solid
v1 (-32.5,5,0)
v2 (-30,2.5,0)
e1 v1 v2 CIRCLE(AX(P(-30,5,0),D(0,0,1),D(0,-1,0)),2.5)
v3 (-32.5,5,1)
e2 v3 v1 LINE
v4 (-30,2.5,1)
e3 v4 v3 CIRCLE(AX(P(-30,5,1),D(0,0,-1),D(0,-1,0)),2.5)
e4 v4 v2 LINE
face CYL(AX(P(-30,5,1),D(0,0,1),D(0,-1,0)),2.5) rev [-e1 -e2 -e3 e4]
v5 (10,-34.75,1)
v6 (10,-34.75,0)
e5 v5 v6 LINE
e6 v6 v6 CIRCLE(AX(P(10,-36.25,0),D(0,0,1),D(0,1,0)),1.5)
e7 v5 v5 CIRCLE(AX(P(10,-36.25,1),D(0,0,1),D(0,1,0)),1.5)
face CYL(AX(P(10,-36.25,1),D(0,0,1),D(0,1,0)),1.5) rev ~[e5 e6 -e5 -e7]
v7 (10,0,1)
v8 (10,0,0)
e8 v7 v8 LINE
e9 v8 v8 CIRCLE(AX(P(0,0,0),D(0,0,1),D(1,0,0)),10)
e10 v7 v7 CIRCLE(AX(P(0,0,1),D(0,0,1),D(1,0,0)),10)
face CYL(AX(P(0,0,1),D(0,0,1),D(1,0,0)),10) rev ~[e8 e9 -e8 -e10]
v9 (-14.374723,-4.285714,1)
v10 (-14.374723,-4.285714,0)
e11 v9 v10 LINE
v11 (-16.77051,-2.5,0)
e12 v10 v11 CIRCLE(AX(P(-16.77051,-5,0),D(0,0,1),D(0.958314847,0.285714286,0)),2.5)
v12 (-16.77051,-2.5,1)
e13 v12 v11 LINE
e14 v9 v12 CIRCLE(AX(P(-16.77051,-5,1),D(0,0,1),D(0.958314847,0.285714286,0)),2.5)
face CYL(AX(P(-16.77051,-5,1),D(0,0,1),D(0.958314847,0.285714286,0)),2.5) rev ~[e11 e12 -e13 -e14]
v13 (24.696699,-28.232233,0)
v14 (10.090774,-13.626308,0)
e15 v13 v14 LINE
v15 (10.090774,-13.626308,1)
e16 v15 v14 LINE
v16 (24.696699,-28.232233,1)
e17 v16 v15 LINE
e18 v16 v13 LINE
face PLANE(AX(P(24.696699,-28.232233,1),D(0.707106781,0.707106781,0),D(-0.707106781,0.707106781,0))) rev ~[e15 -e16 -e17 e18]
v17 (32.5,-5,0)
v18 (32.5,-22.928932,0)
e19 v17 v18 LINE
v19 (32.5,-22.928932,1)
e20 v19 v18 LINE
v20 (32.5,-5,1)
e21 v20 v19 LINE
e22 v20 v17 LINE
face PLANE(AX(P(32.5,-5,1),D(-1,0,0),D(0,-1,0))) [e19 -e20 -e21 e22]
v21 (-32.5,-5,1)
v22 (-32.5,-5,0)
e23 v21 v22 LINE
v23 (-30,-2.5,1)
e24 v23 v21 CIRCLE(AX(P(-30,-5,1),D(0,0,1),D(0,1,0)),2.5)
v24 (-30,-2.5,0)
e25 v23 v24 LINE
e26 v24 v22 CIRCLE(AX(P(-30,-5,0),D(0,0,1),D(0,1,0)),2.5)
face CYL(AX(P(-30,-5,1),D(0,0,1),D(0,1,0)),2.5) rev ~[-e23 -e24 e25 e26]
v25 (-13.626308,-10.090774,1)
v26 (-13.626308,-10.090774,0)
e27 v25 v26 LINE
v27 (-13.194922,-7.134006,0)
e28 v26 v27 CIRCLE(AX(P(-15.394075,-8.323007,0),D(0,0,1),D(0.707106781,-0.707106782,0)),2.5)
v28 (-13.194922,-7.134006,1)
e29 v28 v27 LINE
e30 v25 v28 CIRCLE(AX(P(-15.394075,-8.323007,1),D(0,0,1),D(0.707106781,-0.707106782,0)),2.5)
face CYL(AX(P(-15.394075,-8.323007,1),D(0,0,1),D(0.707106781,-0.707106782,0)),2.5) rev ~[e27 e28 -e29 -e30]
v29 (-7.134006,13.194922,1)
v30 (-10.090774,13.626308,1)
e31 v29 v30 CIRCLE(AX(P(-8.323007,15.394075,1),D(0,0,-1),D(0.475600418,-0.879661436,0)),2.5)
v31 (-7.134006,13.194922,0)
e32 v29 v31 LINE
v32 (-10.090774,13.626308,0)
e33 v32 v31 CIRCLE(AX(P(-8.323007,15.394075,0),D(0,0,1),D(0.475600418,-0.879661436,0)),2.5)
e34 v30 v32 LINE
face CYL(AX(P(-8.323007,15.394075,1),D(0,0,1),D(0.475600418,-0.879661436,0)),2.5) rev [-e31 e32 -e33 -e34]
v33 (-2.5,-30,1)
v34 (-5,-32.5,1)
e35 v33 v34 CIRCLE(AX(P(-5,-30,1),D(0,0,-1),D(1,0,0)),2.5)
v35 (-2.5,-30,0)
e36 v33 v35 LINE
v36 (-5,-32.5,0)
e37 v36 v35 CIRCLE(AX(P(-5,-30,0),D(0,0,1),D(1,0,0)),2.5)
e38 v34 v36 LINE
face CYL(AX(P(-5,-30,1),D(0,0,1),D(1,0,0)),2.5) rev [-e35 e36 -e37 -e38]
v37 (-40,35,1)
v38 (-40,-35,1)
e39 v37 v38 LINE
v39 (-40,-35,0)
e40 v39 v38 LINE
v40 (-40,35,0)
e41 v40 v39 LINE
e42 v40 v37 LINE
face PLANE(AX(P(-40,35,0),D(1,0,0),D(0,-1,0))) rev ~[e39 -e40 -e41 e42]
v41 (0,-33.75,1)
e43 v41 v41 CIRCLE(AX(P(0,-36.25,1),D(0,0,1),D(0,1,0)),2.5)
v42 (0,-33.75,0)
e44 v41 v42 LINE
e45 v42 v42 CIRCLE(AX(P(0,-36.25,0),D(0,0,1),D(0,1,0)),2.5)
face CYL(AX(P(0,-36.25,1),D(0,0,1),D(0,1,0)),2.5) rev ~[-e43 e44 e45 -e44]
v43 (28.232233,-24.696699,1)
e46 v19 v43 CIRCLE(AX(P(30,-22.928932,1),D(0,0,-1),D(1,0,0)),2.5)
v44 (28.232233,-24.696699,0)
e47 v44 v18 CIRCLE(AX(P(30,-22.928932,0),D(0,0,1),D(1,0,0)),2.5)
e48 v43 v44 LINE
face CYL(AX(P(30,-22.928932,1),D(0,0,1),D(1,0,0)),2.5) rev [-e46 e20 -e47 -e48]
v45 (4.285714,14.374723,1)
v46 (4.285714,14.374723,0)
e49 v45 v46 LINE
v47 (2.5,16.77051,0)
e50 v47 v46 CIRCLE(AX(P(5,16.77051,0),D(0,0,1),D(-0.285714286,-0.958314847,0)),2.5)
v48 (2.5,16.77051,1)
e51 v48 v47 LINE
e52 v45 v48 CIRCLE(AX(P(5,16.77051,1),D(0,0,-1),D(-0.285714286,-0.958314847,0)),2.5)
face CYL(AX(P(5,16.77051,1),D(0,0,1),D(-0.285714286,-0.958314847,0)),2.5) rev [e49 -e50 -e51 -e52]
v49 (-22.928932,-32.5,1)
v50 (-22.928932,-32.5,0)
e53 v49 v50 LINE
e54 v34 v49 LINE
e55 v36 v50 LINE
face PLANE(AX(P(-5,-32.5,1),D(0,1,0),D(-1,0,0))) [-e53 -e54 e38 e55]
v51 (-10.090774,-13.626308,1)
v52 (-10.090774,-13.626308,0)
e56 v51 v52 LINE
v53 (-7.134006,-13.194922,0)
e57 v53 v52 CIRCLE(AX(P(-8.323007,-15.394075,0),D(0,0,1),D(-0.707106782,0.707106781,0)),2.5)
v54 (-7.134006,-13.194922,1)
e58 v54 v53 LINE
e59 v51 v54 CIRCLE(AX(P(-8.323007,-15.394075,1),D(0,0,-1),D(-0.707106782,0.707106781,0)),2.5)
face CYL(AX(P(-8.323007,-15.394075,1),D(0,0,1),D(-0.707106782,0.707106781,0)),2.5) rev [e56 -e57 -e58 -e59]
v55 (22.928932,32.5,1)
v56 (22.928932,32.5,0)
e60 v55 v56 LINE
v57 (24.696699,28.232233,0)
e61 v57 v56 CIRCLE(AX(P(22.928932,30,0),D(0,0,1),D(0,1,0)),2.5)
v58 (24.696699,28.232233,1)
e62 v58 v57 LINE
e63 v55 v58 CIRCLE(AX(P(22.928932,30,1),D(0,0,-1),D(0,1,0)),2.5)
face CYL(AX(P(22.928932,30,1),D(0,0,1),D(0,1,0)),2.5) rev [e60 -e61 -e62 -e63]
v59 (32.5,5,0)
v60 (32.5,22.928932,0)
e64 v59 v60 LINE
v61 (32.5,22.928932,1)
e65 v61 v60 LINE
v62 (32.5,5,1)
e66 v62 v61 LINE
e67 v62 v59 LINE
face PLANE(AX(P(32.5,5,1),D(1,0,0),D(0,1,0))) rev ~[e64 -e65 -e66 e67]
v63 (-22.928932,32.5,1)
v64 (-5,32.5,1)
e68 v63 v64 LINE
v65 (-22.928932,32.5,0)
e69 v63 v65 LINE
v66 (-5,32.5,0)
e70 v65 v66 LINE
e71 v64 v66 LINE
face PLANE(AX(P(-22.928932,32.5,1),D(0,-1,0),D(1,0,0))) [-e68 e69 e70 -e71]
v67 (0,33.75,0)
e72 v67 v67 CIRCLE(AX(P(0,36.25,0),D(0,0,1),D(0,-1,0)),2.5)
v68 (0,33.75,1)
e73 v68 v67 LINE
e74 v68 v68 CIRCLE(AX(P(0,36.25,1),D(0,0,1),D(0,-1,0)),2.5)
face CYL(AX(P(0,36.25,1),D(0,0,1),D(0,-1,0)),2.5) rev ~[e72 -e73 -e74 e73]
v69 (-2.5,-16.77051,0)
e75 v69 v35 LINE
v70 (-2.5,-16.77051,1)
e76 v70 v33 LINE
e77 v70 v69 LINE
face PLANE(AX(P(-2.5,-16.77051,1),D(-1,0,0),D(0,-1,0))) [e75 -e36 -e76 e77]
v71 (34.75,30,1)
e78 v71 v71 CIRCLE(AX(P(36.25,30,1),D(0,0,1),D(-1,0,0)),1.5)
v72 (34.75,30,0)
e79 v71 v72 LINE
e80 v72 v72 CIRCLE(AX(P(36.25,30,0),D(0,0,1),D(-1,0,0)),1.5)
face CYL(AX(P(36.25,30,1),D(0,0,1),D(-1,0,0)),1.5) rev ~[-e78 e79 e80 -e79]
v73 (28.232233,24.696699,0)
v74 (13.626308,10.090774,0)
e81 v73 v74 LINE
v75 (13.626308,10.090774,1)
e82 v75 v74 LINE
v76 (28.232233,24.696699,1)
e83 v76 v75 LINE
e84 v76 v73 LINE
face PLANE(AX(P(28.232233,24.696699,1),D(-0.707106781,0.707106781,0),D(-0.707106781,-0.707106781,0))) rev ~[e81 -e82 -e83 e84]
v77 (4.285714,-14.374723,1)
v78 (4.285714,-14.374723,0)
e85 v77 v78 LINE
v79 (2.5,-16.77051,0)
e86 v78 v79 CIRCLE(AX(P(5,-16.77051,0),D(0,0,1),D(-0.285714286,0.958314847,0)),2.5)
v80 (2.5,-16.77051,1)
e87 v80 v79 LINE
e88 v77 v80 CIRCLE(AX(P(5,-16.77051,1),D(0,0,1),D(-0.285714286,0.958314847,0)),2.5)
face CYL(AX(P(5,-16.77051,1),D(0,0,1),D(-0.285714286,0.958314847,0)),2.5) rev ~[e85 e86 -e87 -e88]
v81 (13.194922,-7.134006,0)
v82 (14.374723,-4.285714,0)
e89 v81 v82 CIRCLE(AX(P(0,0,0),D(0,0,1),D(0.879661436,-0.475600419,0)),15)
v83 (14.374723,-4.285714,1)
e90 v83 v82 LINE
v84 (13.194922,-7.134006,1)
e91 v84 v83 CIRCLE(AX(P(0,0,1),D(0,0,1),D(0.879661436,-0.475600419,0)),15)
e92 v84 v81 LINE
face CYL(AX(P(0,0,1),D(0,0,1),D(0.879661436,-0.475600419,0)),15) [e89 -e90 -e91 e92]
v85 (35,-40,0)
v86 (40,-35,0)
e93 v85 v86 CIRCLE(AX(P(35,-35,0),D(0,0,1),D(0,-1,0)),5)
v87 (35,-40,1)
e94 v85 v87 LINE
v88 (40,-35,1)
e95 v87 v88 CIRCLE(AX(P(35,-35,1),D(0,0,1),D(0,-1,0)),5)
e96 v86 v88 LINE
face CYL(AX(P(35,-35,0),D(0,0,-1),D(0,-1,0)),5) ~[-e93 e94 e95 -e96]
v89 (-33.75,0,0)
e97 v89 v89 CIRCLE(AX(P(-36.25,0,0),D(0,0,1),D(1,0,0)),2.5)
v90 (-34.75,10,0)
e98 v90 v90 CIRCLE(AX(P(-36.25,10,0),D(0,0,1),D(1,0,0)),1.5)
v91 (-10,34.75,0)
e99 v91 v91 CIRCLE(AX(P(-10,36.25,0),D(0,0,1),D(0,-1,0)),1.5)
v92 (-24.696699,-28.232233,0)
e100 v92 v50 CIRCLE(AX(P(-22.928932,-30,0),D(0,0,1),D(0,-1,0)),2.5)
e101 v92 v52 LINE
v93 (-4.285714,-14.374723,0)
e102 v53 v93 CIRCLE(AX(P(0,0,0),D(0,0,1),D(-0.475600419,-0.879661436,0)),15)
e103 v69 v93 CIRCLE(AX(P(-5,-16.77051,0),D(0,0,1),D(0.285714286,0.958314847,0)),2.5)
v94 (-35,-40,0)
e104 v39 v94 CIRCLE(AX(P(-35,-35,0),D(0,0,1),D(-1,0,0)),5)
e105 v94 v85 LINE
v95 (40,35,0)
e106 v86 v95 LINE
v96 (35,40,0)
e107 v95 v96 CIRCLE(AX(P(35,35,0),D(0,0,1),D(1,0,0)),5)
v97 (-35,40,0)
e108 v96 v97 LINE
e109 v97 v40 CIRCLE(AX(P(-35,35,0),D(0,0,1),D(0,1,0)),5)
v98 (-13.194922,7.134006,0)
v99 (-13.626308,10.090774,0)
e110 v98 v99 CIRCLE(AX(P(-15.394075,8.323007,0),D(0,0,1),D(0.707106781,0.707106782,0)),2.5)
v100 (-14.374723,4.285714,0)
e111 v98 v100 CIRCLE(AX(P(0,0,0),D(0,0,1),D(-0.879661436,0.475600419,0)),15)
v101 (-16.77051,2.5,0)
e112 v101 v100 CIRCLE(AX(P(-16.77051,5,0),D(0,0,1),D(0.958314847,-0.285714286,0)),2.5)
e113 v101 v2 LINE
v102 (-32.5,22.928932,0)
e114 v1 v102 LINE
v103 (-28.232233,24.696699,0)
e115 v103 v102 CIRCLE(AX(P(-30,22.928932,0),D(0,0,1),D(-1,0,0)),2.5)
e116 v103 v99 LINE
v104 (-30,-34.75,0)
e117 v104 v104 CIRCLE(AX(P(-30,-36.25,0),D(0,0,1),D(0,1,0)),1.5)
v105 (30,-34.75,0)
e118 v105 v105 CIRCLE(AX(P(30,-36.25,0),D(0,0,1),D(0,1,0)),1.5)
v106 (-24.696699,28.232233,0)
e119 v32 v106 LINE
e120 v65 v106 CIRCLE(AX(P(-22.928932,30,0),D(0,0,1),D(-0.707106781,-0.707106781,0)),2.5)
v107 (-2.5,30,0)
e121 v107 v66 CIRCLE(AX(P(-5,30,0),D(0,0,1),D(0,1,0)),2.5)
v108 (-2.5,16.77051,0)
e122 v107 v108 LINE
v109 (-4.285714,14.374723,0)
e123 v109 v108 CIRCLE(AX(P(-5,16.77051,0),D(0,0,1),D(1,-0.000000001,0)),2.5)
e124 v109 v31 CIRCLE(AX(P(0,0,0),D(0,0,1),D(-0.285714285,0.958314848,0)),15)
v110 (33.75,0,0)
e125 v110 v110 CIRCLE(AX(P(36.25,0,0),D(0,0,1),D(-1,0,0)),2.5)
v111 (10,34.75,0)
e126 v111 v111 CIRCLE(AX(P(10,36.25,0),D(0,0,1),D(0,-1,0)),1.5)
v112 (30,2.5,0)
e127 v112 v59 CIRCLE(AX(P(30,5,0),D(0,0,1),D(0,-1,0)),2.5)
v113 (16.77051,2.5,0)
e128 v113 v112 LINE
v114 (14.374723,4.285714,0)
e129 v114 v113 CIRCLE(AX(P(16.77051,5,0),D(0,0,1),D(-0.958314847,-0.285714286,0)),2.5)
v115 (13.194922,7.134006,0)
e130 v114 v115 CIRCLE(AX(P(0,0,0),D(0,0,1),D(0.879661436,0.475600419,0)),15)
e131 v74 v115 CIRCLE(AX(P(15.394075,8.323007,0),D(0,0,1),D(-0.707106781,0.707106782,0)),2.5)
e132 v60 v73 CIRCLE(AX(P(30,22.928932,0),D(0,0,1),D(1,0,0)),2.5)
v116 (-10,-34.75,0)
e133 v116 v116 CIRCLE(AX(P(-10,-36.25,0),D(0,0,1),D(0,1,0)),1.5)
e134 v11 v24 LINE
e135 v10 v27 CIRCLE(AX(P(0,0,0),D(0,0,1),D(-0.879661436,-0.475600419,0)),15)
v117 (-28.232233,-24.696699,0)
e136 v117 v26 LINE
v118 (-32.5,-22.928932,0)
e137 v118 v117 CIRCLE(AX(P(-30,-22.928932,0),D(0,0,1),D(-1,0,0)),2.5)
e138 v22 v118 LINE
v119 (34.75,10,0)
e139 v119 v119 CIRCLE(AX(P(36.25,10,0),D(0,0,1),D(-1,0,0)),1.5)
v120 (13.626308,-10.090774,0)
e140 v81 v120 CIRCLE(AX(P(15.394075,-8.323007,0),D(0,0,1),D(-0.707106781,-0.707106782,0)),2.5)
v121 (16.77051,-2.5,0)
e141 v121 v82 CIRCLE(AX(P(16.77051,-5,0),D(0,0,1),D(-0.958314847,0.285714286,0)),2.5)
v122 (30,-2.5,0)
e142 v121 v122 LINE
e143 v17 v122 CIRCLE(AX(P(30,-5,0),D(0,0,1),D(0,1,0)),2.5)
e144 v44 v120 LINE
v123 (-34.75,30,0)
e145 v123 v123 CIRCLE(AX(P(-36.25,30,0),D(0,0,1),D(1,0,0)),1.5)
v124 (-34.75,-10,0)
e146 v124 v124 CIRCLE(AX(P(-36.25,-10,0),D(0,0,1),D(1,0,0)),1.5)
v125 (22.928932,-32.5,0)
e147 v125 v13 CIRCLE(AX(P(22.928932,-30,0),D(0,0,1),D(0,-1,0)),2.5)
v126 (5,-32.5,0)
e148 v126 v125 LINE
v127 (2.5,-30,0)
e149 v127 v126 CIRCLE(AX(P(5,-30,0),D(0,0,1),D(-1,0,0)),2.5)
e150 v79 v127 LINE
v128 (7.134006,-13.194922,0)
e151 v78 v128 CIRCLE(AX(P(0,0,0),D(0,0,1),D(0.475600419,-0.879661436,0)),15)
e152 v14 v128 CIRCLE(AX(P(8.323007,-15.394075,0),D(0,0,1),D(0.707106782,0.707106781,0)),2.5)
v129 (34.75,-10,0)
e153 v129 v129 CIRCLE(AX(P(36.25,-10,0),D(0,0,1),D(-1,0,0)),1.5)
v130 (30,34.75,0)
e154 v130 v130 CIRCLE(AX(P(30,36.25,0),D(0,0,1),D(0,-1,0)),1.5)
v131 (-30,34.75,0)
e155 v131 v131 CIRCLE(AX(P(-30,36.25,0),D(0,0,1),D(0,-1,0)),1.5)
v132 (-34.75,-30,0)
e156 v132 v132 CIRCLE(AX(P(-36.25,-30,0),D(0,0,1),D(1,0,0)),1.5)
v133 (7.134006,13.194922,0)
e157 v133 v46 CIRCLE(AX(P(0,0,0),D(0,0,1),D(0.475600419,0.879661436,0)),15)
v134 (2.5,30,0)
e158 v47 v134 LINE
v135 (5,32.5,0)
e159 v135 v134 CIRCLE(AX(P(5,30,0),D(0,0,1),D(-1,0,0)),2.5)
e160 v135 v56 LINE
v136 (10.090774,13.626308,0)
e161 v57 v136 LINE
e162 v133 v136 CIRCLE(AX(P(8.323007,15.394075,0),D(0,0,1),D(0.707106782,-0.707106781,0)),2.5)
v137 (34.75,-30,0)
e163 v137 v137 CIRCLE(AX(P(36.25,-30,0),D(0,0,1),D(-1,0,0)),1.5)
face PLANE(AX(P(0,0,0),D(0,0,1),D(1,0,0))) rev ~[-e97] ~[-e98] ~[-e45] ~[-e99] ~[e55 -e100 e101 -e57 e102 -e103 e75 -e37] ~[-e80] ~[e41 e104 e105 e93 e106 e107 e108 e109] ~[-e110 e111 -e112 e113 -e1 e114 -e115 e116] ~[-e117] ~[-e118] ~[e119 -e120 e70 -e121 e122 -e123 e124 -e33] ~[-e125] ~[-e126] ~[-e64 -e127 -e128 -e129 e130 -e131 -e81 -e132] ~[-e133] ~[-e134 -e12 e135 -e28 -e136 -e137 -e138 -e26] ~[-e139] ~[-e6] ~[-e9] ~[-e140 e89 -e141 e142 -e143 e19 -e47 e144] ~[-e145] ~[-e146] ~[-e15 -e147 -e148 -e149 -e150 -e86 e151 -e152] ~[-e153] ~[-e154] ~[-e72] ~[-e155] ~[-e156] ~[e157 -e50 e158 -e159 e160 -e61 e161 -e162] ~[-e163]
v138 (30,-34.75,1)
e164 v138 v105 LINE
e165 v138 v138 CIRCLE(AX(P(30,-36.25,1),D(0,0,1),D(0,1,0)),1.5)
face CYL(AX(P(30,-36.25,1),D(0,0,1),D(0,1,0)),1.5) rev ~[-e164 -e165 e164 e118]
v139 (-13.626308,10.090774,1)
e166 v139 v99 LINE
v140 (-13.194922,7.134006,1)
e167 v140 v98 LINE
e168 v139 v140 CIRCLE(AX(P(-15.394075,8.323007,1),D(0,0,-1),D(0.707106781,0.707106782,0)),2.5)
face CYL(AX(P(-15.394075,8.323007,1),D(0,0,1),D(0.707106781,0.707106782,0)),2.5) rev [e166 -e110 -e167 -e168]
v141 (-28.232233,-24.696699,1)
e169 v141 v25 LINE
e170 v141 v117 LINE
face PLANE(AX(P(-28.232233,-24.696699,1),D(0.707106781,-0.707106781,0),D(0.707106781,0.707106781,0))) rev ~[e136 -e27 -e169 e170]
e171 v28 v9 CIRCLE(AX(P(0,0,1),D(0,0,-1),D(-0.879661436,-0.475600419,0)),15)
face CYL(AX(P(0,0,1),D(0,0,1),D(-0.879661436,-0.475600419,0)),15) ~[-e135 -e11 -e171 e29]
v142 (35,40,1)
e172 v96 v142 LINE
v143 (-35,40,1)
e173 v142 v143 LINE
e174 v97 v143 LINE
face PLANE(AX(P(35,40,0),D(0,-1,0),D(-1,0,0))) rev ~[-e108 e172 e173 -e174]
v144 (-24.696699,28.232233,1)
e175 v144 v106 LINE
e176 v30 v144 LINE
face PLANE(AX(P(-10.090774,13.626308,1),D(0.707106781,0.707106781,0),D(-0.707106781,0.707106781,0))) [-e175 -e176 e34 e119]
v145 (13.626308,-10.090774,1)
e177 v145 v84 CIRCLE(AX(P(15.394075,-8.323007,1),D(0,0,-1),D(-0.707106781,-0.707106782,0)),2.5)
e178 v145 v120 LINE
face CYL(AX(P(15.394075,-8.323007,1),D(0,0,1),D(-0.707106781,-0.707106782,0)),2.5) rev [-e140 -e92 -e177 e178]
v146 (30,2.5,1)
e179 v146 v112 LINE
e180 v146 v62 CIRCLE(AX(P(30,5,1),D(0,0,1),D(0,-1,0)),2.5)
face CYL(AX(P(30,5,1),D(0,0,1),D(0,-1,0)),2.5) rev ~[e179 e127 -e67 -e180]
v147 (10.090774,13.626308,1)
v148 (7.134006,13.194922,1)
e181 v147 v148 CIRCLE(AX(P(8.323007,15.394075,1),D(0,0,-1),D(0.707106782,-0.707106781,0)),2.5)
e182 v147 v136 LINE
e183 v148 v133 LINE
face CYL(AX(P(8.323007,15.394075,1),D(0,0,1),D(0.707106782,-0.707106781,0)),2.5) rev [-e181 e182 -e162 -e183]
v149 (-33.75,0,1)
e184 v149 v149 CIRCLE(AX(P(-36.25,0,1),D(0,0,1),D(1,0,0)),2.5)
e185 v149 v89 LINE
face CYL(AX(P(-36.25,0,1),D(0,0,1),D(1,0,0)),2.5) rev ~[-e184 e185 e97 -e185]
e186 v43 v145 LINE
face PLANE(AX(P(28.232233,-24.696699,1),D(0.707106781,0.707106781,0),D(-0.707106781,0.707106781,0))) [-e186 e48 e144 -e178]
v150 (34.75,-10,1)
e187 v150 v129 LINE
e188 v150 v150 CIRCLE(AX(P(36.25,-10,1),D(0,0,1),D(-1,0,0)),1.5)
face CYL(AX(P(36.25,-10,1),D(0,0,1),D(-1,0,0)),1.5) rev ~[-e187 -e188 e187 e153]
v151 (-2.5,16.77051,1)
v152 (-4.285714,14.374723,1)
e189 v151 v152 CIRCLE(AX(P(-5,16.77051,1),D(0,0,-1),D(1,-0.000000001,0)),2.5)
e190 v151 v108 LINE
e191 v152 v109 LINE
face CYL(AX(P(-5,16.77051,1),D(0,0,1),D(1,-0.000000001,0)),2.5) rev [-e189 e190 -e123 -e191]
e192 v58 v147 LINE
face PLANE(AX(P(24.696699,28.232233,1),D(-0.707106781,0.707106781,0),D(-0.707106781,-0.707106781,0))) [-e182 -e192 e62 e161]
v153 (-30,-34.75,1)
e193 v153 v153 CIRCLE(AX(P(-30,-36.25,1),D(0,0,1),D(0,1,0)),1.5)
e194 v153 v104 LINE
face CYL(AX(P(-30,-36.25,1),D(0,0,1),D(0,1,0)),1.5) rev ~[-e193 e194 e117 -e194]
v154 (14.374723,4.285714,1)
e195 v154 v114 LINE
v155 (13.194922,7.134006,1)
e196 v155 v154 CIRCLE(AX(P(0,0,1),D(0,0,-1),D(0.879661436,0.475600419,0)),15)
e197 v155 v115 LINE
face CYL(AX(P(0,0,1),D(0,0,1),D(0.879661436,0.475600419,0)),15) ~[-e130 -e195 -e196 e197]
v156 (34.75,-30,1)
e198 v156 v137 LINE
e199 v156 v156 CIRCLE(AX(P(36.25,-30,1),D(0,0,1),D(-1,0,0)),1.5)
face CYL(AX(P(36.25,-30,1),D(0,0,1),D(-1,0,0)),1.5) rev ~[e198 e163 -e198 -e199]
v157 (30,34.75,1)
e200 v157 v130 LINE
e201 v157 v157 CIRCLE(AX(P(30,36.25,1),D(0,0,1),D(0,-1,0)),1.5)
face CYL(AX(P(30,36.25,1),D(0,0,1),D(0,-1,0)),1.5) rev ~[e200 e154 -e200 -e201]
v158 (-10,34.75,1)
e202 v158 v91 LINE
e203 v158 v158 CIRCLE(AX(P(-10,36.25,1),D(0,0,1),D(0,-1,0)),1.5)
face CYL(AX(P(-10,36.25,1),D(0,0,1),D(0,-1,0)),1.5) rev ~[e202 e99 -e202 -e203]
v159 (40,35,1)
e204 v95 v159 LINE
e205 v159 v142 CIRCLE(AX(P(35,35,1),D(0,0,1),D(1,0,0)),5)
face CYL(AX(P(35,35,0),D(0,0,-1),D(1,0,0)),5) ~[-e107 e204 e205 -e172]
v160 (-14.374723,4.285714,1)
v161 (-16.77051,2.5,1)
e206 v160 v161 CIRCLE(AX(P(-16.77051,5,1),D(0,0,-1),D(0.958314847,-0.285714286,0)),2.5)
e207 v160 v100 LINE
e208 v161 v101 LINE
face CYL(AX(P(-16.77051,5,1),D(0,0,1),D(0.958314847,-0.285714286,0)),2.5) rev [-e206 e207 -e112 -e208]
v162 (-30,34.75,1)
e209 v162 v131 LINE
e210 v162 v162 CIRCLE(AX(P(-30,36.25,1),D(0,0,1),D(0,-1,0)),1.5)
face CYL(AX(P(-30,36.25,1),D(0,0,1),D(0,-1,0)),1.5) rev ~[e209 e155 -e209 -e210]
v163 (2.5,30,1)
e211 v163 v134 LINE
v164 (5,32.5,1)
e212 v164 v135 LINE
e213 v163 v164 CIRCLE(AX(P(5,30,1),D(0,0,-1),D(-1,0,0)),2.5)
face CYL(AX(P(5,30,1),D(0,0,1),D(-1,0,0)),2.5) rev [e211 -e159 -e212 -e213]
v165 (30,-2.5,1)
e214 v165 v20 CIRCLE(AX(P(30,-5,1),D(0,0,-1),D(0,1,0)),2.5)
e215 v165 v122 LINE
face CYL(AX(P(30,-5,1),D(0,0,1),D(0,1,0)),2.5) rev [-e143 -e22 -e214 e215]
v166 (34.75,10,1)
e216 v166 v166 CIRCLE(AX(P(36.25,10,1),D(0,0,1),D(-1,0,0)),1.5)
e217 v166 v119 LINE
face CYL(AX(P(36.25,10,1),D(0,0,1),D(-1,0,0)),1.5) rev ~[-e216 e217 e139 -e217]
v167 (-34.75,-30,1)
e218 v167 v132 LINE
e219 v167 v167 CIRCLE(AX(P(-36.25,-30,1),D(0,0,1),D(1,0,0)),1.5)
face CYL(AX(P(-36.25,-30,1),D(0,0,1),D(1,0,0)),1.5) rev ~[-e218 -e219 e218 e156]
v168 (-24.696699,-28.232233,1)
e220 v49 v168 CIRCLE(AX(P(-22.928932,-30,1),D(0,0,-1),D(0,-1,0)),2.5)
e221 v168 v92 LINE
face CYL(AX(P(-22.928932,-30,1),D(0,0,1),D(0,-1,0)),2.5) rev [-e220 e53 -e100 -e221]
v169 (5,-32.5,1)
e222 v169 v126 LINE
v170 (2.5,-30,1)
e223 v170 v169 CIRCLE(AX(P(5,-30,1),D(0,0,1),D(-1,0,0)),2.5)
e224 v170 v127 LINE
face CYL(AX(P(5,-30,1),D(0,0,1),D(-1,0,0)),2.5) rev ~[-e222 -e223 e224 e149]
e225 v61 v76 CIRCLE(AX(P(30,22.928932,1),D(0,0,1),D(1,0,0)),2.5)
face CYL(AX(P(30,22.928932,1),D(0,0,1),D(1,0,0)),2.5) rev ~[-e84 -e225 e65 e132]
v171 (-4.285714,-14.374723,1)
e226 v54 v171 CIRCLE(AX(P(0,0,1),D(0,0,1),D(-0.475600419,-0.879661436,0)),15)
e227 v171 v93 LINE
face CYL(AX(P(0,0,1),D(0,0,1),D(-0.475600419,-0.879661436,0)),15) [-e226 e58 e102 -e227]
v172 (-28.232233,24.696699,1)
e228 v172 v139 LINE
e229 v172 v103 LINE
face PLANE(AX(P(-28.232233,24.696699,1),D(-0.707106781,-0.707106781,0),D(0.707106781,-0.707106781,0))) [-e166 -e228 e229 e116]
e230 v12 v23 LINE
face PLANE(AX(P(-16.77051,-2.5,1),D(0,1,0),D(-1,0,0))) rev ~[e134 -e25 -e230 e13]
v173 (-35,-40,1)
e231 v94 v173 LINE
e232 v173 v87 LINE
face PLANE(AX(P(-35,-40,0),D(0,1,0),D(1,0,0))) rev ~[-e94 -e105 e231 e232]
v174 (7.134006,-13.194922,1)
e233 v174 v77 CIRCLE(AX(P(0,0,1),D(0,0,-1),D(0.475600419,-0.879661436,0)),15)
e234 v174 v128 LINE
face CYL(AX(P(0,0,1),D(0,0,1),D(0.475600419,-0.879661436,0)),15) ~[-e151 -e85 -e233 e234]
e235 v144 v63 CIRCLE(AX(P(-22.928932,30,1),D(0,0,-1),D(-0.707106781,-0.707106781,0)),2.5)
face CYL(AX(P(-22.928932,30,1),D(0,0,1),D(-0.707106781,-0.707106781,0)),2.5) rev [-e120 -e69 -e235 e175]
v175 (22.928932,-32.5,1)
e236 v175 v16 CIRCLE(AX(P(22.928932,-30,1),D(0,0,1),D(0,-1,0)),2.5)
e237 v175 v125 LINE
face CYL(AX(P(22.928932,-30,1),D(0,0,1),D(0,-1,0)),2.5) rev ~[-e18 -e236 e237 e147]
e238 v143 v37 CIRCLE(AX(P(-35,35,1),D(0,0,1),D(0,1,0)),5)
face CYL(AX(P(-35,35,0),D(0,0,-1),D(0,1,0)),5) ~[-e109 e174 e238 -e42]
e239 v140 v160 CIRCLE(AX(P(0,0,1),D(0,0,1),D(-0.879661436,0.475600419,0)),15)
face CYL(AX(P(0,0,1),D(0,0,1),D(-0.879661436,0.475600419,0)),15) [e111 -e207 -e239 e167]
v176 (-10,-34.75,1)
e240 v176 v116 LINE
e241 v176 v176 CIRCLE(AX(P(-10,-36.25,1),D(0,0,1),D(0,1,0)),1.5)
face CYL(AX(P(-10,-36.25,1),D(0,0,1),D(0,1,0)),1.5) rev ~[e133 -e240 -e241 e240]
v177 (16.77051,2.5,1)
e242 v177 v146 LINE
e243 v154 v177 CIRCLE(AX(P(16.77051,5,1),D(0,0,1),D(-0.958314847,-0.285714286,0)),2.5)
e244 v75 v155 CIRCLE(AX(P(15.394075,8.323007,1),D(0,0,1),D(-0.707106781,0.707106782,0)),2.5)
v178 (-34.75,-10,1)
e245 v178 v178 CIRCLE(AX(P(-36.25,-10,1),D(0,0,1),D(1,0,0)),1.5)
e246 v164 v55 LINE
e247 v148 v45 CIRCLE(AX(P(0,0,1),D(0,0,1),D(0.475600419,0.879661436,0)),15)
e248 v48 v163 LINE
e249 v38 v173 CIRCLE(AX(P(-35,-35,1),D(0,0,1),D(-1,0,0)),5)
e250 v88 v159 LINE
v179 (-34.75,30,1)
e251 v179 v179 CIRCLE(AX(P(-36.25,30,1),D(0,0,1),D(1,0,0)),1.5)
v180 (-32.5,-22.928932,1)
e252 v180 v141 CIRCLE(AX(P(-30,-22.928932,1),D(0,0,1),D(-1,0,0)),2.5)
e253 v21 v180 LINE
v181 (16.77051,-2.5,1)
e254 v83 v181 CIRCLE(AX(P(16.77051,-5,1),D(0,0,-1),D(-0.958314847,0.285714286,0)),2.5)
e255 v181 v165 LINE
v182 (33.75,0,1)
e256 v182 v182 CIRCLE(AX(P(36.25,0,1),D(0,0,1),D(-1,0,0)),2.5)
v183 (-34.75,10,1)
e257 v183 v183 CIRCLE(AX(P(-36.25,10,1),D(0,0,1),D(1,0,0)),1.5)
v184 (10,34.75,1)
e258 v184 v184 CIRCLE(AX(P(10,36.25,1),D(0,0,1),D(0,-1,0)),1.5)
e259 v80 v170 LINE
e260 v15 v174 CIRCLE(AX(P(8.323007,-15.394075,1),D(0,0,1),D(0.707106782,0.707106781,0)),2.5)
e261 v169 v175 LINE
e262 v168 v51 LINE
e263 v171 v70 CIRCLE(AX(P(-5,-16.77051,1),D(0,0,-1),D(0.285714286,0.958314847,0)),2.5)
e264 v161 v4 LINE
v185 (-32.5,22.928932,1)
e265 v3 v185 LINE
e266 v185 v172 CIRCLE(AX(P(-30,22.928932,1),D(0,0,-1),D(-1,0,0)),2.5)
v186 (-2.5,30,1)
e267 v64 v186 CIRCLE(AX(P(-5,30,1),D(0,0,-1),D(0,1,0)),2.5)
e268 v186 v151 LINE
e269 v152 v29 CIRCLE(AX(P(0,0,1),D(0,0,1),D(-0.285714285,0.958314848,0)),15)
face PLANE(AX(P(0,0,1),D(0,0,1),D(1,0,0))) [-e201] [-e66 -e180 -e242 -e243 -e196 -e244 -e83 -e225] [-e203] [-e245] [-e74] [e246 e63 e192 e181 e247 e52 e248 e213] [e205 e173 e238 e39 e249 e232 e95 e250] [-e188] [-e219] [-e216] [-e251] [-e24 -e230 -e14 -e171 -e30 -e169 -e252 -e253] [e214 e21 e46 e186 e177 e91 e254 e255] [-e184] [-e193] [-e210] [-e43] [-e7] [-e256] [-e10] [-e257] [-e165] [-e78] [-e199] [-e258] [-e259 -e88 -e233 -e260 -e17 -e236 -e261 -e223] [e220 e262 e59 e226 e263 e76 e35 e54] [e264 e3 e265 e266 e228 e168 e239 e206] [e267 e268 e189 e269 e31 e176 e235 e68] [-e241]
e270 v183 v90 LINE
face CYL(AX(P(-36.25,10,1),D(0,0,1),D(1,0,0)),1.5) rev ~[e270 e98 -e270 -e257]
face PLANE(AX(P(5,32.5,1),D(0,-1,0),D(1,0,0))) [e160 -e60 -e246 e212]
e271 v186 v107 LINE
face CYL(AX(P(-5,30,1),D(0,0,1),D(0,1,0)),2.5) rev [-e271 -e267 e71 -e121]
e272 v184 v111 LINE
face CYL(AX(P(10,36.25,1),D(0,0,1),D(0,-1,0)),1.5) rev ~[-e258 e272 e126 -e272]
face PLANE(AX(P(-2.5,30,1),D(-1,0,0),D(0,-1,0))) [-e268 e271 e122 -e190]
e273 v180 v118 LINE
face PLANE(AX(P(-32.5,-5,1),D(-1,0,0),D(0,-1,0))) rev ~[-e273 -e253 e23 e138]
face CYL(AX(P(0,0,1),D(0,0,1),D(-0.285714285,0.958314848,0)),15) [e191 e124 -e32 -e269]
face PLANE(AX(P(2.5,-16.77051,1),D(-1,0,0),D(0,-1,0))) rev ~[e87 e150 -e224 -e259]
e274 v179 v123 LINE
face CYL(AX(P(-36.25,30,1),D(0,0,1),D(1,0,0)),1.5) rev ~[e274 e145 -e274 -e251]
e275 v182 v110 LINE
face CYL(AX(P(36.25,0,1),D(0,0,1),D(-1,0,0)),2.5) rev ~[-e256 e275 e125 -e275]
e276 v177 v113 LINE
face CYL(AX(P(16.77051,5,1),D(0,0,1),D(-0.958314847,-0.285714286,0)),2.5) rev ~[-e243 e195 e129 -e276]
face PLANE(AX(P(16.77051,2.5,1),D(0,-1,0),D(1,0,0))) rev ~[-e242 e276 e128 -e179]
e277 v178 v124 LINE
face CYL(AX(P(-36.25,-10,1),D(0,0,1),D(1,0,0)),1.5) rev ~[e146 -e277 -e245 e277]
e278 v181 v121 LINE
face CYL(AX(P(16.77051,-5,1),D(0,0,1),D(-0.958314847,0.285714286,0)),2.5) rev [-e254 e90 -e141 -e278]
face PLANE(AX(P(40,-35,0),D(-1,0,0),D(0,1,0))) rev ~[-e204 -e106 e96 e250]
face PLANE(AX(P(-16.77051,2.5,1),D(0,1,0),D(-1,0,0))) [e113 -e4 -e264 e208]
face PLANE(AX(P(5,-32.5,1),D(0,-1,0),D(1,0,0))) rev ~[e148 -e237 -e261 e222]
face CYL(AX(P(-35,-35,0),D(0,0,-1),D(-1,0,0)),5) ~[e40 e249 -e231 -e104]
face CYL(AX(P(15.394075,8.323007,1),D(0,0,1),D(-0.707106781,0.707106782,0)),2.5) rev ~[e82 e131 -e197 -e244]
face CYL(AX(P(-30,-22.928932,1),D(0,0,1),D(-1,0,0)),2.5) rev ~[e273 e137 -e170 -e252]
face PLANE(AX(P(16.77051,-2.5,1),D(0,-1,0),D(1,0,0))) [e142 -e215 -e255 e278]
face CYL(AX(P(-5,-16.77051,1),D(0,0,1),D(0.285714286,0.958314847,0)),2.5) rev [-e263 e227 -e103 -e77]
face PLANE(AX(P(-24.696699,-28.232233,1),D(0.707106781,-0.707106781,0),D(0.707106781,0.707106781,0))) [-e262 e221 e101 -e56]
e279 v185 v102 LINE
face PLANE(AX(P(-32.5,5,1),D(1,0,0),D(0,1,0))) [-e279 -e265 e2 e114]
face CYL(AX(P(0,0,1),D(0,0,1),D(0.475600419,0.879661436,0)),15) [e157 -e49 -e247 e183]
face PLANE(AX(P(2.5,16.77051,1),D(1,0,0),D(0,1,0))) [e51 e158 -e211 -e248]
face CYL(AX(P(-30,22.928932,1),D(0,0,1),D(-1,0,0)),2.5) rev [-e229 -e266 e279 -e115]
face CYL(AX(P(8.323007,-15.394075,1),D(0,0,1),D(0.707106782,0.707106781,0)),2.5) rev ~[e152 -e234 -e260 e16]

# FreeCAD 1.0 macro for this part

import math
import FreeCAD as App
import Part
import Sketcher

V = App.Vector

doc = App.newDocument("Part")
params = doc.addObject("Spreadsheet::Sheet", "Params")
for row, (alias, value) in enumerate([
    ("sketch1_radius", "5 mm"),
    ("sketch1_width", "70 mm"),
    ("pad1_length", "1 mm"),
    ("sketch2_diameter", "20 mm"),
    ("sketch2_radius", "15 mm"),
    ("sketch2_radius2", "2.5 mm"),
    ("sketch3_diameter", "3 mm"),
    ("sketch3_diameter2", "5 mm"),
], start=1):
    params.set(f"A{row}", alias)
    params.set(f"B{row}", "=" + value)
    params.setAlias(f"B{row}", alias)

body = doc.addObject("PartDesign::Body", "Body")

# Sketch on XY plane
sketch1 = body.newObject("Sketcher::SketchObject", "Sketch")
sketch1.AttachmentSupport = (doc.getObject("XY_Plane"), [""])
sketch1.MapMode = "FlatFace"
sketch1.addGeometry([
    Part.LineSegment(V(-35, -40, 0), V(35, -40, 0)),  # 0
    Part.ArcOfCircle(Part.Circle(V(35, -35, 0), V(0, 0, 1), 5), math.radians(-90), math.radians(0)),  # 1
    Part.LineSegment(V(40, -35, 0), V(40, 35, 0)),  # 2
    Part.ArcOfCircle(Part.Circle(V(35, 35, 0), V(0, 0, 1), 5), math.radians(0), math.radians(90)),  # 3
    Part.LineSegment(V(35, 40, 0), V(-35, 40, 0)),  # 4
    Part.ArcOfCircle(Part.Circle(V(-35, 35, 0), V(0, 0, 1), 5), math.radians(90), math.radians(180)),  # 5
    Part.LineSegment(V(-40, 35, 0), V(-40, -35, 0)),  # 6
    Part.ArcOfCircle(Part.Circle(V(-35, -35, 0), V(0, 0, 1), 5), math.radians(180), math.radians(270)),  # 7
], False)
sketch1.addConstraint([
    Sketcher.Constraint("Tangent", 0, 2, 1, 1),
    Sketcher.Constraint("Tangent", 1, 2, 2, 1),
    Sketcher.Constraint("Tangent", 2, 2, 3, 1),
    Sketcher.Constraint("Tangent", 3, 2, 4, 1),
    Sketcher.Constraint("Tangent", 4, 2, 5, 1),
    Sketcher.Constraint("Tangent", 5, 2, 6, 1),
    Sketcher.Constraint("Tangent", 6, 2, 7, 1),
    Sketcher.Constraint("Tangent", 7, 2, 0, 1),
    Sketcher.Constraint("Horizontal", 0),
    Sketcher.Constraint("Vertical", 2),
    Sketcher.Constraint("Horizontal", 4),
    Sketcher.Constraint("Vertical", 6),
    Sketcher.Constraint("Equal", 1, 3),
    Sketcher.Constraint("Equal", 3, 5),
    Sketcher.Constraint("Equal", 5, 7),
    Sketcher.Constraint("Symmetric", 1, 3, 5, 3, -1, 1),
    Sketcher.Constraint("Equal", 4, 2),
    Sketcher.Constraint("Radius", 1, 5.0),
    Sketcher.Constraint("DistanceX", 0, 1, 0, 2, 70.0),
])
sketch1.setExpression("Constraints[17]", "Params.sketch1_radius")
sketch1.setExpression("Constraints[18]", "Params.sketch1_width")
pad1 = body.newObject("PartDesign::Pad", "Pad")
pad1.Profile = sketch1
pad1.setExpression("Length", "Params.pad1_length")

# Sketch on XY plane
sketch2 = body.newObject("Sketcher::SketchObject", "Sketch001")
sketch2.AttachmentSupport = (doc.getObject("XY_Plane"), [""])
sketch2.MapMode = "FlatFace"
sketch2.AttachmentOffset = App.Placement(V(0, 0, 1), App.Rotation())
sketch2.addGeometry([
    Part.Circle(V(0, 0, 0), V(0, 0, 1), 10),  # 0
    Part.LineSegment(V(2.5, 30, 0), V(2.5, 16.8, 0)),  # 1
    Part.ArcOfCircle(Part.Circle(V(5, 16.8, 0), V(0, 0, 1), 2.5), math.radians(-180), math.radians(-107)),  # 2
    Part.ArcOfCircle(Part.Circle(V(0, 0, 0), V(0, 0, 1), 15), math.radians(61.6), math.radians(73.4)),  # 3
    Part.ArcOfCircle(Part.Circle(V(8.3, 15.4, 0), V(0, 0, 1), 2.5), math.radians(-118), math.radians(-45)),  # 4
    Part.LineSegment(V(10.1, 13.6, 0), V(24.7, 28.2, 0)),  # 5
    Part.ArcOfCircle(Part.Circle(V(22.9, 30, 0), V(0, 0, 1), 2.5), math.radians(-45), math.radians(90)),  # 6
    Part.LineSegment(V(22.9, 32.5, 0), V(5, 32.5, 0)),  # 7
    Part.ArcOfCircle(Part.Circle(V(5, 30, 0), V(0, 0, 1), 2.5), math.radians(90), math.radians(180)),  # 8
    Part.LineSegment(V(-24.7, 28.2, 0), V(-10.1, 13.6, 0)),  # 9
    Part.ArcOfCircle(Part.Circle(V(-8.3, 15.4, 0), V(0, 0, 1), 2.5), math.radians(-135), math.radians(-62)),  # 10
    Part.ArcOfCircle(Part.Circle(V(0, 0, 0), V(0, 0, 1), 15), math.radians(106.6), math.radians(118.4)),  # 11
    Part.ArcOfCircle(Part.Circle(V(-5, 16.8, 0), V(0, 0, 1), 2.5), math.radians(-73), math.radians(0)),  # 12
    Part.LineSegment(V(-2.5, 16.8, 0), V(-2.5, 30, 0)),  # 13
    Part.ArcOfCircle(Part.Circle(V(-5, 30, 0), V(0, 0, 1), 2.5), math.radians(0), math.radians(90)),  # 14
    Part.LineSegment(V(-5, 32.5, 0), V(-22.9, 32.5, 0)),  # 15
    Part.ArcOfCircle(Part.Circle(V(-22.9, 30, 0), V(0, 0, 1), 2.5), math.radians(90), math.radians(225)),  # 16
    Part.LineSegment(V(32.5, 5, 0), V(32.5, 22.9, 0)),  # 17
    Part.ArcOfCircle(Part.Circle(V(30, 22.9, 0), V(0, 0, 1), 2.5), math.radians(0), math.radians(135)),  # 18
    Part.LineSegment(V(28.2, 24.7, 0), V(13.6, 10.1, 0)),  # 19
    Part.ArcOfCircle(Part.Circle(V(15.4, 8.3, 0), V(0, 0, 1), 2.5), math.radians(135), math.radians(208)),  # 20
    Part.ArcOfCircle(Part.Circle(V(0, 0, 0), V(0, 0, 1), 15), math.radians(16.6), math.radians(28.4)),  # 21
    Part.ArcOfCircle(Part.Circle(V(16.8, 5, 0), V(0, 0, 1), 2.5), math.radians(-163), math.radians(-90)),  # 22
    Part.LineSegment(V(16.8, 2.5, 0), V(30, 2.5, 0)),  # 23
    Part.ArcOfCircle(Part.Circle(V(30, 5, 0), V(0, 0, 1), 2.5), math.radians(-90), math.radians(0)),  # 24
    Part.LineSegment(V(30, -2.5, 0), V(16.8, -2.5, 0)),  # 25
    Part.ArcOfCircle(Part.Circle(V(16.8, -5, 0), V(0, 0, 1), 2.5), math.radians(90), math.radians(163)),  # 26
    Part.ArcOfCircle(Part.Circle(V(0, 0, 0), V(0, 0, 1), 15), math.radians(-28.4), math.radians(-16.6)),  # 27
    Part.ArcOfCircle(Part.Circle(V(15.4, -8.3, 0), V(0, 0, 1), 2.5), math.radians(152), math.radians(225)),  # 28
    Part.LineSegment(V(13.6, -10.1, 0), V(28.2, -24.7, 0)),  # 29
    Part.ArcOfCircle(Part.Circle(V(30, -22.9, 0), V(0, 0, 1), 2.5), math.radians(-135), math.radians(0)),  # 30
    Part.LineSegment(V(32.5, -22.9, 0), V(32.5, -5, 0)),  # 31
    Part.ArcOfCircle(Part.Circle(V(30, -5, 0), V(0, 0, 1), 2.5), math.radians(0), math.radians(90)),  # 32
    Part.LineSegment(V(5, -32.5, 0), V(22.9, -32.5, 0)),  # 33
    Part.ArcOfCircle(Part.Circle(V(22.9, -30, 0), V(0, 0, 1), 2.5), math.radians(-90), math.radians(45)),  # 34
    Part.LineSegment(V(24.7, -28.2, 0), V(10.1, -13.6, 0)),  # 35
    Part.ArcOfCircle(Part.Circle(V(8.3, -15.4, 0), V(0, 0, 1), 2.5), math.radians(45), math.radians(118)),  # 36
    Part.ArcOfCircle(Part.Circle(V(0, 0, 0), V(0, 0, 1), 15), math.radians(-73.4), math.radians(-61.6)),  # 37
    Part.ArcOfCircle(Part.Circle(V(5, -16.8, 0), V(0, 0, 1), 2.5), math.radians(107), math.radians(180)),  # 38
    Part.LineSegment(V(2.5, -16.8, 0), V(2.5, -30, 0)),  # 39
    Part.ArcOfCircle(Part.Circle(V(5, -30, 0), V(0, 0, 1), 2.5), math.radians(180), math.radians(270)),  # 40
    Part.LineSegment(V(-2.5, -30, 0), V(-2.5, -16.8, 0)),  # 41
    Part.ArcOfCircle(Part.Circle(V(-5, -16.8, 0), V(0, 0, 1), 2.5), math.radians(0), math.radians(73)),  # 42
    Part.ArcOfCircle(Part.Circle(V(0, 0, 0), V(0, 0, 1), 15), math.radians(-118.4), math.radians(-106.6)),  # 43
    Part.ArcOfCircle(Part.Circle(V(-8.3, -15.4, 0), V(0, 0, 1), 2.5), math.radians(62), math.radians(135)),  # 44
    Part.LineSegment(V(-10.1, -13.6, 0), V(-24.7, -28.2, 0)),  # 45
    Part.ArcOfCircle(Part.Circle(V(-22.9, -30, 0), V(0, 0, 1), 2.5), math.radians(135), math.radians(270)),  # 46
    Part.LineSegment(V(-22.9, -32.5, 0), V(-5, -32.5, 0)),  # 47
    Part.ArcOfCircle(Part.Circle(V(-5, -30, 0), V(0, 0, 1), 2.5), math.radians(-90), math.radians(0)),  # 48
    Part.LineSegment(V(-32.5, -5, 0), V(-32.5, -22.9, 0)),  # 49
    Part.ArcOfCircle(Part.Circle(V(-30, -22.9, 0), V(0, 0, 1), 2.5), math.radians(180), math.radians(315)),  # 50
    Part.LineSegment(V(-28.2, -24.7, 0), V(-13.6, -10.1, 0)),  # 51
    Part.ArcOfCircle(Part.Circle(V(-15.4, -8.3, 0), V(0, 0, 1), 2.5), math.radians(-45), math.radians(28)),  # 52
    Part.ArcOfCircle(Part.Circle(V(0, 0, 0), V(0, 0, 1), 15), math.radians(-163.4), math.radians(-151.6)),  # 53
    Part.ArcOfCircle(Part.Circle(V(-16.8, -5, 0), V(0, 0, 1), 2.5), math.radians(17), math.radians(90)),  # 54
    Part.LineSegment(V(-16.8, -2.5, 0), V(-30, -2.5, 0)),  # 55
    Part.ArcOfCircle(Part.Circle(V(-30, -5, 0), V(0, 0, 1), 2.5), math.radians(90), math.radians(180)),  # 56
    Part.LineSegment(V(-30, 2.5, 0), V(-16.8, 2.5, 0)),  # 57
    Part.ArcOfCircle(Part.Circle(V(-16.8, 5, 0), V(0, 0, 1), 2.5), math.radians(-90), math.radians(-17)),  # 58
    Part.ArcOfCircle(Part.Circle(V(0, 0, 0), V(0, 0, 1), 15), math.radians(151.6), math.radians(163.4)),  # 59
    Part.ArcOfCircle(Part.Circle(V(-15.4, 8.3, 0), V(0, 0, 1), 2.5), math.radians(-28), math.radians(45)),  # 60
    Part.LineSegment(V(-13.6, 10.1, 0), V(-28.2, 24.7, 0)),  # 61
    Part.ArcOfCircle(Part.Circle(V(-30, 22.9, 0), V(0, 0, 1), 2.5), math.radians(45), math.radians(180)),  # 62
    Part.LineSegment(V(-32.5, 22.9, 0), V(-32.5, 5, 0)),  # 63
    Part.ArcOfCircle(Part.Circle(V(-30, 5, 0), V(0, 0, 1), 2.5), math.radians(180), math.radians(270)),  # 64
], False)
sketch2.addConstraint([
    Sketcher.Constraint("Tangent", 1, 2, 2, 1),
    Sketcher.Constraint("Tangent", 2, 2, 3, 2),
    Sketcher.Constraint("Tangent", 3, 1, 4, 1),
    Sketcher.Constraint("Tangent", 4, 2, 5, 1),
    Sketcher.Constraint("Tangent", 5, 2, 6, 1),
    Sketcher.Constraint("Tangent", 6, 2, 7, 1),
    Sketcher.Constraint("Tangent", 7, 2, 8, 1),
    Sketcher.Constraint("Tangent", 8, 2, 1, 1),
    Sketcher.Constraint("Tangent", 9, 2, 10, 1),
    Sketcher.Constraint("Tangent", 10, 2, 11, 2),
    Sketcher.Constraint("Tangent", 11, 1, 12, 1),
    Sketcher.Constraint("Tangent", 12, 2, 13, 1),
    Sketcher.Constraint("Tangent", 13, 2, 14, 1),
    Sketcher.Constraint("Tangent", 14, 2, 15, 1),
    Sketcher.Constraint("Tangent", 15, 2, 16, 1),
    Sketcher.Constraint("Tangent", 16, 2, 9, 1),
    Sketcher.Constraint("Tangent", 17, 2, 18, 1),
    Sketcher.Constraint("Tangent", 18, 2, 19, 1),
    Sketcher.Constraint("Tangent", 19, 2, 20, 1),
    Sketcher.Constraint("Tangent", 20, 2, 21, 2),
    Sketcher.Constraint("Tangent", 21, 1, 22, 1),
    Sketcher.Constraint("Tangent", 22, 2, 23, 1),
    Sketcher.Constraint("Tangent", 23, 2, 24, 1),
    Sketcher.Constraint("Tangent", 24, 2, 17, 1),
    Sketcher.Constraint("Tangent", 25, 2, 26, 1),
    Sketcher.Constraint("Tangent", 26, 2, 27, 2),
    Sketcher.Constraint("Tangent", 27, 1, 28, 1),
    Sketcher.Constraint("Tangent", 28, 2, 29, 1),
    Sketcher.Constraint("Tangent", 29, 2, 30, 1),
    Sketcher.Constraint("Tangent", 30, 2, 31, 1),
    Sketcher.Constraint("Tangent", 31, 2, 32, 1),
    Sketcher.Constraint("Tangent", 32, 2, 25, 1),
    Sketcher.Constraint("Tangent", 33, 2, 34, 1),
    Sketcher.Constraint("Tangent", 34, 2, 35, 1),
    Sketcher.Constraint("Tangent", 35, 2, 36, 1),
    Sketcher.Constraint("Tangent", 36, 2, 37, 2),
    Sketcher.Constraint("Tangent", 37, 1, 38, 1),
    Sketcher.Constraint("Tangent", 38, 2, 39, 1),
    Sketcher.Constraint("Tangent", 39, 2, 40, 1),
    Sketcher.Constraint("Tangent", 40, 2, 33, 1),
    Sketcher.Constraint("Tangent", 41, 2, 42, 1),
    Sketcher.Constraint("Tangent", 42, 2, 43, 2),
    Sketcher.Constraint("Tangent", 43, 1, 44, 1),
    Sketcher.Constraint("Tangent", 44, 2, 45, 1),
    Sketcher.Constraint("Tangent", 45, 2, 46, 1),
    Sketcher.Constraint("Tangent", 46, 2, 47, 1),
    Sketcher.Constraint("Tangent", 47, 2, 48, 1),
    Sketcher.Constraint("Tangent", 48, 2, 41, 1),
    Sketcher.Constraint("Tangent", 49, 2, 50, 1),
    Sketcher.Constraint("Tangent", 50, 2, 51, 1),
    Sketcher.Constraint("Tangent", 51, 2, 52, 1),
    Sketcher.Constraint("Tangent", 52, 2, 53, 2),
    Sketcher.Constraint("Tangent", 53, 1, 54, 1),
    Sketcher.Constraint("Tangent", 54, 2, 55, 1),
    Sketcher.Constraint("Tangent", 55, 2, 56, 1),
    Sketcher.Constraint("Tangent", 56, 2, 49, 1),
    Sketcher.Constraint("Tangent", 57, 2, 58, 1),
    Sketcher.Constraint("Tangent", 58, 2, 59, 2),
    Sketcher.Constraint("Tangent", 59, 1, 60, 1),
    Sketcher.Constraint("Tangent", 60, 2, 61, 1),
    Sketcher.Constraint("Tangent", 61, 2, 62, 1),
    Sketcher.Constraint("Tangent", 62, 2, 63, 1),
    Sketcher.Constraint("Tangent", 63, 2, 64, 1),
    Sketcher.Constraint("Tangent", 64, 2, 57, 1),
    Sketcher.Constraint("Vertical", 1),
    Sketcher.Constraint("Horizontal", 7),
    Sketcher.Constraint("Vertical", 13),
    Sketcher.Constraint("Horizontal", 15),
    Sketcher.Constraint("Vertical", 17),
    Sketcher.Constraint("Horizontal", 23),
    Sketcher.Constraint("Horizontal", 25),
    Sketcher.Constraint("Vertical", 31),
    Sketcher.Constraint("Horizontal", 33),
    Sketcher.Constraint("Vertical", 39),
    Sketcher.Constraint("Vertical", 41),
    Sketcher.Constraint("Horizontal", 47),
    Sketcher.Constraint("Vertical", 49),
    Sketcher.Constraint("Horizontal", 55),
    Sketcher.Constraint("Horizontal", 57),
    Sketcher.Constraint("Vertical", 63),
    Sketcher.Constraint("Coincident", 0, 3, -1, 1),
    Sketcher.Constraint("Coincident", 3, 3, -1, 1),
    Sketcher.Constraint("Coincident", 11, 3, -1, 1),
    Sketcher.Constraint("Coincident", 21, 3, -1, 1),
    Sketcher.Constraint("Coincident", 27, 3, -1, 1),
    Sketcher.Constraint("Coincident", 37, 3, -1, 1),
    Sketcher.Constraint("Coincident", 43, 3, -1, 1),
    Sketcher.Constraint("Coincident", 53, 3, -1, 1),
    Sketcher.Constraint("Coincident", 59, 3, -1, 1),
    Sketcher.Constraint("Equal", 2, 4),
    Sketcher.Constraint("Equal", 4, 6),
    Sketcher.Constraint("Equal", 6, 8),
    Sketcher.Constraint("Equal", 8, 10),
    Sketcher.Constraint("Equal", 3, 11),
    Sketcher.Constraint("Equal", 10, 12),
    Sketcher.Constraint("Equal", 12, 14),
    Sketcher.Constraint("Equal", 14, 16),
    Sketcher.Constraint("Equal", 16, 18),
    Sketcher.Constraint("Equal", 18, 20),
    Sketcher.Constraint("Equal", 11, 21),
    Sketcher.Constraint("Equal", 20, 22),
    Sketcher.Constraint("Equal", 22, 24),
    Sketcher.Constraint("Equal", 24, 26),
    Sketcher.Constraint("Equal", 21, 27),
    Sketcher.Constraint("Equal", 26, 28),
    Sketcher.Constraint("Equal", 28, 30),
    Sketcher.Constraint("Equal", 30, 32),
    Sketcher.Constraint("Equal", 32, 34),
    Sketcher.Constraint("Equal", 34, 36),
    Sketcher.Constraint("Equal", 27, 37),
    Sketcher.Constraint("Equal", 36, 38),
    Sketcher.Constraint("Equal", 38, 40),
    Sketcher.Constraint("Equal", 40, 42),
    Sketcher.Constraint("Equal", 37, 43),
    Sketcher.Constraint("Equal", 42, 44),
    Sketcher.Constraint("Equal", 44, 46),
    Sketcher.Constraint("Equal", 46, 48),
    Sketcher.Constraint("Equal", 48, 50),
    Sketcher.Constraint("Equal", 50, 52),
    Sketcher.Constraint("Equal", 43, 53),
    Sketcher.Constraint("Equal", 52, 54),
    Sketcher.Constraint("Equal", 54, 56),
    Sketcher.Constraint("Equal", 56, 58),
    Sketcher.Constraint("Equal", 53, 59),
    Sketcher.Constraint("Equal", 58, 60),
    Sketcher.Constraint("Equal", 60, 62),
    Sketcher.Constraint("Equal", 62, 64),
    Sketcher.Constraint("Symmetric", 16, 3, 34, 3, -1, 1),
    Sketcher.Constraint("Symmetric", 6, 3, 46, 3, -1, 1),
    Sketcher.Constraint("Symmetric", 18, 3, 50, 3, -1, 1),
    Sketcher.Constraint("Symmetric", 30, 3, 62, 3, -1, 1),
    Sketcher.Constraint("Symmetric", 8, 3, 14, 3, -2),
    Sketcher.Constraint("Symmetric", 30, 3, 50, 3, -2),
    Sketcher.Constraint("Symmetric", 4, 2, 9, 2, -2),
    Sketcher.Constraint("Perpendicular", 5, 9),
    Sketcher.Constraint("Perpendicular", 9, 19),
    Sketcher.Constraint("Perpendicular", 19, 29),
    Sketcher.Constraint("Parallel", 29, 35),
    Sketcher.Constraint("Perpendicular", 35, 45),
    Sketcher.Constraint("Parallel", 45, 51),
    Sketcher.Constraint("Perpendicular", 51, 61),
    Sketcher.Constraint("Horizontal", 38, 3, 42, 3),
    Sketcher.Constraint("Horizontal", 32, 3, 54, 3),
    Sketcher.Constraint("Horizontal", 24, 3, 58, 3),
    Sketcher.Constraint("Vertical", 22, 3, 26, 3),
    Sketcher.Constraint("Vertical", 8, 3, 38, 3),
    Sketcher.Constraint("Equal", 57, 1),
    Sketcher.Constraint("Equal", 47, 17),
    Sketcher.Constraint("Equal", 9, 19),
    Sketcher.Constraint("Diameter", 0, 20.0),
    Sketcher.Constraint("Radius", 3, 15.0),
    Sketcher.Constraint("Radius", 2, 2.5),
    Sketcher.Constraint("DistanceX", -1, 1, 2, 3, 5.0),
    Sketcher.Constraint("DistanceY", -1, 1, 6, 3, 30.0),
    Sketcher.Constraint("DistanceX", -1, 1, 5, 2, 24.696699),
])
sketch2.setExpression("Constraints[149]", "Params.sketch2_diameter")
sketch2.setExpression("Constraints[150]", "Params.sketch2_radius")
sketch2.setExpression("Constraints[151]", "Params.sketch2_radius2")
pocket1 = body.newObject("PartDesign::Pocket", "Pocket")
pocket1.Profile = sketch2
pocket1.Type = "ThroughAll"

# Sketch on XY plane
sketch3 = body.newObject("Sketcher::SketchObject", "Sketch002")
sketch3.AttachmentSupport = (doc.getObject("XY_Plane"), [""])
sketch3.MapMode = "FlatFace"
sketch3.AttachmentOffset = App.Placement(V(0, 0, 1), App.Rotation())
sketch3.addGeometry([
    Part.Circle(V(-36.2, 30, 0), V(0, 0, 1), 1.5),  # 0
    Part.Circle(V(-36.2, 10, 0), V(0, 0, 1), 1.5),  # 1
    Part.Circle(V(-36.2, -10, 0), V(0, 0, 1), 1.5),  # 2
    Part.Circle(V(-36.2, -30, 0), V(0, 0, 1), 1.5),  # 3
    Part.Circle(V(36.2, -30, 0), V(0, 0, 1), 1.5),  # 4
    Part.Circle(V(36.2, -10, 0), V(0, 0, 1), 1.5),  # 5
    Part.Circle(V(36.2, 10, 0), V(0, 0, 1), 1.5),  # 6
    Part.Circle(V(36.2, 30, 0), V(0, 0, 1), 1.5),  # 7
    Part.Circle(V(-36.2, 0, 0), V(0, 0, 1), 2.5),  # 8
    Part.Circle(V(36.2, 0, 0), V(0, 0, 1), 2.5),  # 9
], False)
sketch3.addConstraint([
    Sketcher.Constraint("Equal", 0, 1),
    Sketcher.Constraint("Equal", 1, 2),
    Sketcher.Constraint("Equal", 2, 3),
    Sketcher.Constraint("Equal", 3, 4),
    Sketcher.Constraint("Equal", 4, 5),
    Sketcher.Constraint("Equal", 5, 6),
    Sketcher.Constraint("Equal", 6, 7),
    Sketcher.Constraint("Equal", 8, 9),
    Sketcher.Constraint("Symmetric", 0, 3, 4, 3, -1, 1),
    Sketcher.Constraint("Symmetric", 1, 3, 5, 3, -1, 1),
    Sketcher.Constraint("Symmetric", 2, 3, 6, 3, -1, 1),
    Sketcher.Constraint("Symmetric", 3, 3, 7, 3, -1, 1),
    Sketcher.Constraint("Symmetric", 8, 3, 9, 3, -1, 1),
    Sketcher.Constraint("Symmetric", 3, 3, 4, 3, -2),
    Sketcher.Constraint("Symmetric", 2, 3, 5, 3, -2),
    Sketcher.Constraint("PointOnObject", 8, 3, -1),
    Sketcher.Constraint("Vertical", 0, 3, 1, 3),
    Sketcher.Constraint("Vertical", 3, 3, 8, 3),
    Sketcher.Constraint("Diameter", 0, 3.0),
    Sketcher.Constraint("Diameter", 8, 5.0),
    Sketcher.Constraint("DistanceY", -1, 1, 0, 3, 30.0),
    Sketcher.Constraint("DistanceY", -1, 1, 1, 3, 10.0),
    Sketcher.Constraint("DistanceX", 3, 3, 4, 3, 72.5),
])
sketch3.setExpression("Constraints[18]", "Params.sketch3_diameter")
sketch3.setExpression("Constraints[19]", "Params.sketch3_diameter2")
pocket2 = body.newObject("PartDesign::Pocket", "Pocket001")
pocket2.Profile = sketch3
pocket2.Type = "ThroughAll"
doc.recompute()

polarpattern = body.newObject("PartDesign::PolarPattern", "PolarPattern")
polarpattern.Originals = [pocket2]
polarpattern.Axis = (doc.getObject("Z_Axis"), [""])
polarpattern.Angle = 360
polarpattern.Occurrences = 4
body.Tip = polarpattern

doc.recompute()
